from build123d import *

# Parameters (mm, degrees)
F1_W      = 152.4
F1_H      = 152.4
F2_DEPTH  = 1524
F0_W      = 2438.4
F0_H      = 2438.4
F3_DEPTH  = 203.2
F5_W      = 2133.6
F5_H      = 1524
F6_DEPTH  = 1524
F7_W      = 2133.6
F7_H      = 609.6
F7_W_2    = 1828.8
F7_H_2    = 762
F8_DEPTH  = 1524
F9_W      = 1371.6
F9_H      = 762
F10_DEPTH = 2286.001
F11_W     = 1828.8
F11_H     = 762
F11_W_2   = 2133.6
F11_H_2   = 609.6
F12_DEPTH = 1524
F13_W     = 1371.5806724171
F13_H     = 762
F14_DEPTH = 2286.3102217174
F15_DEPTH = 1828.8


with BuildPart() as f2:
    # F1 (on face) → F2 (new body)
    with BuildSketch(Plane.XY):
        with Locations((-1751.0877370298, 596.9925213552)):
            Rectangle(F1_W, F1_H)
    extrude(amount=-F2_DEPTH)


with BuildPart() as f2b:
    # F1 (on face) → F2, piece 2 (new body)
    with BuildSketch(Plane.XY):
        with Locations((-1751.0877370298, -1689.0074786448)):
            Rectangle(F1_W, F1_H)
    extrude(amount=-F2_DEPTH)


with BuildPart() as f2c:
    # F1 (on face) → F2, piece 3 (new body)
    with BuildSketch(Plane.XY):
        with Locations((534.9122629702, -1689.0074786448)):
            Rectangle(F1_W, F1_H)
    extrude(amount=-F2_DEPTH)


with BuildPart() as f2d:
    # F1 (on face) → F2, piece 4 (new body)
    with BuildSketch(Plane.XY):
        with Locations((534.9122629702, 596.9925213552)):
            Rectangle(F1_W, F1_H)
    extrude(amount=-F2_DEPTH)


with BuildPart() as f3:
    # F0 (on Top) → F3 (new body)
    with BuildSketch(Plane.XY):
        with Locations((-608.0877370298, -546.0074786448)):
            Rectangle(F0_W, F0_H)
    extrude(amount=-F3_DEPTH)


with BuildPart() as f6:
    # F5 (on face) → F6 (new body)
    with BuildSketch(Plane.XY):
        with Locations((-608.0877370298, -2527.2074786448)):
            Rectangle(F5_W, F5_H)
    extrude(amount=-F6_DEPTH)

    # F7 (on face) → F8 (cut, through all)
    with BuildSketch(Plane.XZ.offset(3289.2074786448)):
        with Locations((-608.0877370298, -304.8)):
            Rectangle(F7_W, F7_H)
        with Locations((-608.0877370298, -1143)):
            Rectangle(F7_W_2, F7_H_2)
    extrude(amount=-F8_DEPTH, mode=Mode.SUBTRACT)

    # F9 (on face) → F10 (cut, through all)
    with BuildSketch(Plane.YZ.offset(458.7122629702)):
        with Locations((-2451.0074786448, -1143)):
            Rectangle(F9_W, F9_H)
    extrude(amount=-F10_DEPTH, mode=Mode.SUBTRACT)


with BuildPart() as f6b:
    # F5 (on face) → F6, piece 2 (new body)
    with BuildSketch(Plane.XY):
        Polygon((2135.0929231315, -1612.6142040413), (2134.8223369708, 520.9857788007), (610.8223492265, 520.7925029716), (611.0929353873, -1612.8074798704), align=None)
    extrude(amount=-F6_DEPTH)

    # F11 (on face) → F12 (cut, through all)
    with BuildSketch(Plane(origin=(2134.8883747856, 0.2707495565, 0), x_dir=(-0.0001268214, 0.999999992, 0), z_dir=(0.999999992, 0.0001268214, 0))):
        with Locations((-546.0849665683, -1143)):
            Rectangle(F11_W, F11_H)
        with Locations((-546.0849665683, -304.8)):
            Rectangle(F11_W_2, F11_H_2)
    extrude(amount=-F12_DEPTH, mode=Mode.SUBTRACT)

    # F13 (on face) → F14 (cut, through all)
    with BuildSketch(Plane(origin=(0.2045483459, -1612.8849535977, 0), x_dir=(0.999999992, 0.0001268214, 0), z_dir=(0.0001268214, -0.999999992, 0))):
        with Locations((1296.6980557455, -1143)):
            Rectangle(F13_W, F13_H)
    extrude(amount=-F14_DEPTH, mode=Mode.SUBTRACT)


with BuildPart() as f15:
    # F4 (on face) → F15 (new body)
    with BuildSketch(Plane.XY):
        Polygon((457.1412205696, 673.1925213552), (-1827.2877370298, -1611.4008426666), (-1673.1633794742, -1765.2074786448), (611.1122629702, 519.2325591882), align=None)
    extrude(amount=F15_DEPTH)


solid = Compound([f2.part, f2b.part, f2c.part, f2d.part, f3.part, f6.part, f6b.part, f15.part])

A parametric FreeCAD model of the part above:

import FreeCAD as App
import Part
import Sketcher
from FreeCAD import Vector
Q = App.Units.Quantity


def add_polygon(sketch, points):
    """Adds a closed chain of lines whose ends are joined by coincident constraints."""
    first, n = sketch.GeometryCount, len(points)
    for a, b in zip(points, points[1:] + points[:1]):
        sketch.addGeometry(Part.LineSegment(App.Vector(*a, 0), App.Vector(*b, 0)), False)
    for i in range(n):
        sketch.addConstraint(Sketcher.Constraint("Coincident", first + i, 2, first + (i + 1) % n, 1))

doc = App.newDocument("Part")
body = doc.addObject("PartDesign::Body", "Body")

# Sketch on XY plane
sketch1 = body.newObject("Sketcher::SketchObject", "Sketch")
sketch1.AttachmentSupport = (doc.getObject("XY_Plane"), [""])
sketch1.MapMode = "FlatFace"
add_polygon(sketch1, [(-1827, 673), (-1827, 521), (-1675, 521), (-1675, 673)])  # lines 0-3
sketch1.addConstraint([
    Sketcher.Constraint("Vertical", 0),
    Sketcher.Constraint("Horizontal", 1),
    Sketcher.Constraint("Vertical", 2),
    Sketcher.Constraint("Horizontal", 3),
    Sketcher.Constraint("Equal", 3, 0),
    Sketcher.Constraint("DistanceX", 1, 1, 1, 2, Q("6 in")),
    Sketcher.Constraint("DistanceY", -1, 1, 0, 2, 520.792521),
    Sketcher.Constraint("DistanceX", 0, 2, -1, 1, 1827.287737),
])
pad1 = body.newObject("PartDesign::Pad", "Pad")
pad1.Profile = sketch1
pad1.Length = Q("60 in")
pad1.Reversed = True
body2 = doc.addObject("PartDesign::Body", "Body001")

# Sketch on XY plane
sketch2 = body2.newObject("Sketcher::SketchObject", "Sketch001")
sketch2.AttachmentSupport = (doc.getObject("XY_Plane001"), [""])
sketch2.MapMode = "FlatFace"
add_polygon(sketch2, [(-1827, -1613), (-1827, -1765), (-1675, -1765), (-1675, -1613)])  # lines 0-3
sketch2.addConstraint([
    Sketcher.Constraint("Vertical", 0),
    Sketcher.Constraint("Horizontal", 1),
    Sketcher.Constraint("Vertical", 2),
    Sketcher.Constraint("Horizontal", 3),
    Sketcher.Constraint("Equal", 3, 0),
    Sketcher.Constraint("DistanceX", 1, 1, 1, 2, Q("6 in")),
    Sketcher.Constraint("DistanceY", 0, 2, -1, 1, 1765.207479),
    Sketcher.Constraint("DistanceX", 0, 2, -1, 1, 1827.287737),
])
pad2 = body2.newObject("PartDesign::Pad", "Pad001")
pad2.Profile = sketch2
pad2.Length = Q("60 in")
pad2.Reversed = True
body3 = doc.addObject("PartDesign::Body", "Body002")

# Sketch on XY plane
sketch3 = body3.newObject("Sketcher::SketchObject", "Sketch002")
sketch3.AttachmentSupport = (doc.getObject("XY_Plane002"), [""])
sketch3.MapMode = "FlatFace"
add_polygon(sketch3, [(459, -1613), (459, -1765), (611, -1765), (611, -1613)])  # lines 0-3
sketch3.addConstraint([
    Sketcher.Constraint("Vertical", 0),
    Sketcher.Constraint("Horizontal", 1),
    Sketcher.Constraint("Vertical", 2),
    Sketcher.Constraint("Horizontal", 3),
    Sketcher.Constraint("Equal", 3, 0),
    Sketcher.Constraint("DistanceX", 1, 1, 1, 2, Q("6 in")),
    Sketcher.Constraint("DistanceY", 0, 2, -1, 1, 1765.207479),
    Sketcher.Constraint("DistanceX", -1, 1, 0, 2, 458.712263),
])
pad3 = body3.newObject("PartDesign::Pad", "Pad002")
pad3.Profile = sketch3
pad3.Length = Q("60 in")
pad3.Reversed = True
body4 = doc.addObject("PartDesign::Body", "Body003")

# Sketch on XY plane
sketch4 = body4.newObject("Sketcher::SketchObject", "Sketch003")
sketch4.AttachmentSupport = (doc.getObject("XY_Plane003"), [""])
sketch4.MapMode = "FlatFace"
add_polygon(sketch4, [(459, 673), (459, 521), (611, 521), (611, 673)])  # lines 0-3
sketch4.addConstraint([
    Sketcher.Constraint("Vertical", 0),
    Sketcher.Constraint("Horizontal", 1),
    Sketcher.Constraint("Vertical", 2),
    Sketcher.Constraint("Horizontal", 3),
    Sketcher.Constraint("Equal", 3, 0),
    Sketcher.Constraint("DistanceX", 1, 1, 1, 2, Q("6 in")),
    Sketcher.Constraint("DistanceY", -1, 1, 0, 2, 520.792521),
    Sketcher.Constraint("DistanceX", -1, 1, 0, 2, 458.712263),
])
pad4 = body4.newObject("PartDesign::Pad", "Pad003")
pad4.Profile = sketch4
pad4.Length = Q("60 in")
pad4.Reversed = True
body5 = doc.addObject("PartDesign::Body", "Body004")

# Sketch on XY plane
sketch5 = body5.newObject("Sketcher::SketchObject", "Sketch004")
sketch5.AttachmentSupport = (doc.getObject("XY_Plane004"), [""])
sketch5.MapMode = "FlatFace"
add_polygon(sketch5, [(-1827, 673), (-1827, -1765), (611, -1765), (611, 673)])  # lines 0-3
sketch5.addConstraint([
    Sketcher.Constraint("Vertical", 0),
    Sketcher.Constraint("Horizontal", 1),
    Sketcher.Constraint("Vertical", 2),
    Sketcher.Constraint("Horizontal", 3),
    Sketcher.Constraint("Equal", 3, 0),
    Sketcher.Constraint("DistanceX", 1, 1, 1, 2, Q("96 in")),
    Sketcher.Constraint("DistanceY", 0, 2, -1, 1, 1765.207479),
    Sketcher.Constraint("DistanceX", 0, 2, -1, 1, 1827.287737),
])
pad5 = body5.newObject("PartDesign::Pad", "Pad004")
pad5.Profile = sketch5
pad5.Length = Q("8 in")
pad5.Reversed = True
body6 = doc.addObject("PartDesign::Body", "Body005")

# Sketch on XY plane
sketch6 = body6.newObject("Sketcher::SketchObject", "Sketch005")
sketch6.AttachmentSupport = (doc.getObject("XY_Plane005"), [""])
sketch6.MapMode = "FlatFace"
add_polygon(sketch6, [(-1675, -1765), (-1675, -3289), (459, -3289), (459, -1765)])  # lines 0-3
sketch6.addConstraint([
    Sketcher.Constraint("Vertical", 0),
    Sketcher.Constraint("Horizontal", 1),
    Sketcher.Constraint("Vertical", 2),
    Sketcher.Constraint("Horizontal", 3),
    Sketcher.Constraint("DistanceX", 1, 1, 1, 2, Q("84 in")),
    Sketcher.Constraint("DistanceY", 0, 2, 0, 1, Q("60 in")),
    Sketcher.Constraint("DistanceY", 0, 2, -1, 1, 3289.207479),
    Sketcher.Constraint("DistanceX", 0, 2, -1, 1, 1674.887737),
])
pad6 = body6.newObject("PartDesign::Pad", "Pad005")
pad6.Profile = sketch6
pad6.Length = Q("60 in")
pad6.Reversed = True

# Sketch on XZ plane
sketch7 = body6.newObject("Sketcher::SketchObject", "Sketch006")
sketch7.AttachmentSupport = (doc.getObject("XZ_Plane005"), [""])
sketch7.MapMode = "FlatFace"
sketch7.AttachmentOffset = App.Placement(Vector(0, 0, 3289.207479), App.Rotation())
add_polygon(sketch7, [(-1675, 0), (-1675, -610), (459, -610), (459, 0)])  # lines 0-3
add_polygon(sketch7, [(-1522, -762), (-1522, -1524), (306, -1524), (306, -762)])  # lines 4-7
sketch7.addConstraint([
    Sketcher.Constraint("Vertical", 0),
    Sketcher.Constraint("Horizontal", 1),
    Sketcher.Constraint("Vertical", 2),
    Sketcher.Constraint("Horizontal", 3),
    Sketcher.Constraint("Vertical", 4),
    Sketcher.Constraint("Horizontal", 5),
    Sketcher.Constraint("Vertical", 6),
    Sketcher.Constraint("Horizontal", 7),
    Sketcher.Constraint("PointOnObject", 2, 2, -1),
    Sketcher.Constraint("DistanceX", 1, 1, 1, 2, Q("84 in")),
    Sketcher.Constraint("DistanceX", 5, 1, 5, 2, Q("72 in")),
    Sketcher.Constraint("DistanceY", 0, 2, 0, 1, Q("24 in")),
    Sketcher.Constraint("DistanceY", 4, 2, 4, 1, Q("30 in")),
    Sketcher.Constraint("DistanceY", 4, 2, -1, 1, Q("60 in")),
    Sketcher.Constraint("DistanceX", 0, 2, 4, 2, Q("6 in")),
    Sketcher.Constraint("DistanceX", 0, 2, -1, 1, 1674.887737),
])
pocket1 = body6.newObject("PartDesign::Pocket", "Pocket")
pocket1.Profile = sketch7
pocket1.Type = "ThroughAll"

# Sketch on YZ plane
sketch8 = body6.newObject("Sketcher::SketchObject", "Sketch007")
sketch8.AttachmentSupport = (doc.getObject("YZ_Plane005"), [""])
sketch8.MapMode = "FlatFace"
sketch8.AttachmentOffset = App.Placement(Vector(0, 0, 458.712263), App.Rotation())
add_polygon(sketch8, [(-3137, -762), (-3137, -1524), (-1765, -1524), (-1765, -762)])  # lines 0-3
sketch8.addConstraint([
    Sketcher.Constraint("Vertical", 0),
    Sketcher.Constraint("Horizontal", 1),
    Sketcher.Constraint("Vertical", 2),
    Sketcher.Constraint("Horizontal", 3),
    Sketcher.Constraint("DistanceX", 1, 1, 1, 2, Q("54 in")),
    Sketcher.Constraint("DistanceY", 0, 2, 0, 1, Q("30 in")),
    Sketcher.Constraint("DistanceY", 0, 2, -1, 1, Q("60 in")),
    Sketcher.Constraint("DistanceX", 0, 2, -1, 1, 3136.807479),
])
pocket2 = body6.newObject("PartDesign::Pocket", "Pocket001")
pocket2.Profile = sketch8
pocket2.Type = "ThroughAll"
body7 = doc.addObject("PartDesign::Body", "Body006")

# Sketch on XY plane
sketch9 = body7.newObject("Sketcher::SketchObject", "Sketch008")
sketch9.AttachmentSupport = (doc.getObject("XY_Plane006"), [""])
sketch9.MapMode = "FlatFace"
add_polygon(sketch9, [(2135, -1613), (2135, 521), (611, 521), (611, -1613)])  # lines 0-3
sketch9.addConstraint([
    Sketcher.Constraint("Perpendicular", 0, 1),
    Sketcher.Constraint("Perpendicular", 1, 2),
    Sketcher.Constraint("Perpendicular", 2, 3),
    Sketcher.Constraint("Distance", 0, Q("84 in")),
    Sketcher.Constraint("Distance", 1, Q("60 in")),
    Sketcher.Constraint("DistanceX", 2, 2, 0, 2, 1523.729402),
    Sketcher.Constraint("DistanceY", -1, 1, 0, 2, 520.985779),
    Sketcher.Constraint("DistanceX", -1, 1, 1, 2, 610.822349),
])
pad7 = body7.newObject("PartDesign::Pad", "Pad006")
pad7.Profile = sketch9
pad7.Length = Q("60 in")
pad7.Reversed = True

# Sketch on an angled plane
sketch10 = body7.newObject("Sketcher::SketchObject", "Sketch009")
sketch10.Placement = App.Placement(Vector(2134.888375, 0.27075, 0), App.Rotation(Vector(-0.000126821, 0.999999992, 0), Vector(0, 0, 1), Vector(0.999999992, 0.000126821, 0), "ZXY"))
add_polygon(sketch10, [(-1460, -762), (-1460, -1524), (368, -1524), (368, -762)])  # lines 0-3
add_polygon(sketch10, [(-1613, 0), (-1613, -610), (521, -610), (521, 0)])  # lines 4-7
sketch10.addConstraint([
    Sketcher.Constraint("Vertical", 0),
    Sketcher.Constraint("Horizontal", 1),
    Sketcher.Constraint("Vertical", 2),
    Sketcher.Constraint("Horizontal", 3),
    Sketcher.Constraint("Vertical", 4),
    Sketcher.Constraint("Horizontal", 5),
    Sketcher.Constraint("Vertical", 6),
    Sketcher.Constraint("Horizontal", 7),
    Sketcher.Constraint("PointOnObject", 6, 2, -1),
    Sketcher.Constraint("DistanceX", 1, 1, 1, 2, Q("72 in")),
    Sketcher.Constraint("DistanceX", 5, 1, 5, 2, Q("84 in")),
    Sketcher.Constraint("DistanceY", 0, 2, 0, 1, Q("30 in")),
    Sketcher.Constraint("DistanceY", 4, 2, 4, 1, Q("24 in")),
    Sketcher.Constraint("DistanceY", 0, 2, -1, 1, Q("60 in")),
    Sketcher.Constraint("DistanceX", 4, 2, 3, 2, Q("6 in")),
    Sketcher.Constraint("DistanceX", 0, 2, -1, 1, 1460.484967),
])
pocket3 = body7.newObject("PartDesign::Pocket", "Pocket002")
pocket3.Profile = sketch10
pocket3.Type = "ThroughAll"

# Sketch on an angled plane
sketch11 = body7.newObject("Sketcher::SketchObject", "Sketch010")
sketch11.Placement = App.Placement(Vector(0.204548, -1612.884954, 0), App.Rotation(Vector(0.999999992, 0.000126821, 0), Vector(0, 0, 1), Vector(0.000126821, -0.999999992, 0), "ZXY"))
add_polygon(sketch11, [(611, -762), (611, -1524), (1982, -1524), (1982, -762)])  # lines 0-3
sketch11.addConstraint([
    Sketcher.Constraint("Vertical", 0),
    Sketcher.Constraint("Horizontal", 1),
    Sketcher.Constraint("Vertical", 2),
    Sketcher.Constraint("Horizontal", 3),
    Sketcher.Constraint("DistanceY", 0, 2, 0, 1, Q("30 in")),
    Sketcher.Constraint("DistanceY", 0, 2, -1, 1, Q("60 in")),
    Sketcher.Constraint("DistanceX", 1, 1, 1, 2, 1371.580673),
    Sketcher.Constraint("DistanceX", -1, 1, 0, 2, 610.90772),
])
pocket4 = body7.newObject("PartDesign::Pocket", "Pocket003")
pocket4.Profile = sketch11
pocket4.Type = "ThroughAll"
body8 = doc.addObject("PartDesign::Body", "Body007")

# Sketch on XY plane
sketch12 = body8.newObject("Sketcher::SketchObject", "Sketch011")
sketch12.AttachmentSupport = (doc.getObject("XY_Plane007"), [""])
sketch12.MapMode = "FlatFace"
add_polygon(sketch12, [(457, 673), (-1827, -1611), (-1673, -1765), (611, 519)])  # lines 0-3
sketch12.addConstraint([
    Sketcher.Constraint("Parallel", 0, 2),
    Sketcher.Constraint("Perpendicular", 2, 3),
    Sketcher.Constraint("DistanceX", 0, 2, 2, 2, Q("96 in")),
    Sketcher.Constraint("DistanceY", 1, 2, 3, 2, Q("96 in")),
    Sketcher.Constraint("Distance", 3, 217.740102),
    Sketcher.Constraint("DistanceY", 0, 2, 2, 2, 2130.633402),
    Sketcher.Constraint("DistanceX", 1, 2, -1, 1, 1673.163379),
    Sketcher.Constraint("DistanceY", 1, 2, -1, 1, 1765.207479),
])
pad8 = body8.newObject("PartDesign::Pad", "Pad007")
pad8.Profile = sketch12
pad8.Length = Q("72 in")

doc.recompute()
